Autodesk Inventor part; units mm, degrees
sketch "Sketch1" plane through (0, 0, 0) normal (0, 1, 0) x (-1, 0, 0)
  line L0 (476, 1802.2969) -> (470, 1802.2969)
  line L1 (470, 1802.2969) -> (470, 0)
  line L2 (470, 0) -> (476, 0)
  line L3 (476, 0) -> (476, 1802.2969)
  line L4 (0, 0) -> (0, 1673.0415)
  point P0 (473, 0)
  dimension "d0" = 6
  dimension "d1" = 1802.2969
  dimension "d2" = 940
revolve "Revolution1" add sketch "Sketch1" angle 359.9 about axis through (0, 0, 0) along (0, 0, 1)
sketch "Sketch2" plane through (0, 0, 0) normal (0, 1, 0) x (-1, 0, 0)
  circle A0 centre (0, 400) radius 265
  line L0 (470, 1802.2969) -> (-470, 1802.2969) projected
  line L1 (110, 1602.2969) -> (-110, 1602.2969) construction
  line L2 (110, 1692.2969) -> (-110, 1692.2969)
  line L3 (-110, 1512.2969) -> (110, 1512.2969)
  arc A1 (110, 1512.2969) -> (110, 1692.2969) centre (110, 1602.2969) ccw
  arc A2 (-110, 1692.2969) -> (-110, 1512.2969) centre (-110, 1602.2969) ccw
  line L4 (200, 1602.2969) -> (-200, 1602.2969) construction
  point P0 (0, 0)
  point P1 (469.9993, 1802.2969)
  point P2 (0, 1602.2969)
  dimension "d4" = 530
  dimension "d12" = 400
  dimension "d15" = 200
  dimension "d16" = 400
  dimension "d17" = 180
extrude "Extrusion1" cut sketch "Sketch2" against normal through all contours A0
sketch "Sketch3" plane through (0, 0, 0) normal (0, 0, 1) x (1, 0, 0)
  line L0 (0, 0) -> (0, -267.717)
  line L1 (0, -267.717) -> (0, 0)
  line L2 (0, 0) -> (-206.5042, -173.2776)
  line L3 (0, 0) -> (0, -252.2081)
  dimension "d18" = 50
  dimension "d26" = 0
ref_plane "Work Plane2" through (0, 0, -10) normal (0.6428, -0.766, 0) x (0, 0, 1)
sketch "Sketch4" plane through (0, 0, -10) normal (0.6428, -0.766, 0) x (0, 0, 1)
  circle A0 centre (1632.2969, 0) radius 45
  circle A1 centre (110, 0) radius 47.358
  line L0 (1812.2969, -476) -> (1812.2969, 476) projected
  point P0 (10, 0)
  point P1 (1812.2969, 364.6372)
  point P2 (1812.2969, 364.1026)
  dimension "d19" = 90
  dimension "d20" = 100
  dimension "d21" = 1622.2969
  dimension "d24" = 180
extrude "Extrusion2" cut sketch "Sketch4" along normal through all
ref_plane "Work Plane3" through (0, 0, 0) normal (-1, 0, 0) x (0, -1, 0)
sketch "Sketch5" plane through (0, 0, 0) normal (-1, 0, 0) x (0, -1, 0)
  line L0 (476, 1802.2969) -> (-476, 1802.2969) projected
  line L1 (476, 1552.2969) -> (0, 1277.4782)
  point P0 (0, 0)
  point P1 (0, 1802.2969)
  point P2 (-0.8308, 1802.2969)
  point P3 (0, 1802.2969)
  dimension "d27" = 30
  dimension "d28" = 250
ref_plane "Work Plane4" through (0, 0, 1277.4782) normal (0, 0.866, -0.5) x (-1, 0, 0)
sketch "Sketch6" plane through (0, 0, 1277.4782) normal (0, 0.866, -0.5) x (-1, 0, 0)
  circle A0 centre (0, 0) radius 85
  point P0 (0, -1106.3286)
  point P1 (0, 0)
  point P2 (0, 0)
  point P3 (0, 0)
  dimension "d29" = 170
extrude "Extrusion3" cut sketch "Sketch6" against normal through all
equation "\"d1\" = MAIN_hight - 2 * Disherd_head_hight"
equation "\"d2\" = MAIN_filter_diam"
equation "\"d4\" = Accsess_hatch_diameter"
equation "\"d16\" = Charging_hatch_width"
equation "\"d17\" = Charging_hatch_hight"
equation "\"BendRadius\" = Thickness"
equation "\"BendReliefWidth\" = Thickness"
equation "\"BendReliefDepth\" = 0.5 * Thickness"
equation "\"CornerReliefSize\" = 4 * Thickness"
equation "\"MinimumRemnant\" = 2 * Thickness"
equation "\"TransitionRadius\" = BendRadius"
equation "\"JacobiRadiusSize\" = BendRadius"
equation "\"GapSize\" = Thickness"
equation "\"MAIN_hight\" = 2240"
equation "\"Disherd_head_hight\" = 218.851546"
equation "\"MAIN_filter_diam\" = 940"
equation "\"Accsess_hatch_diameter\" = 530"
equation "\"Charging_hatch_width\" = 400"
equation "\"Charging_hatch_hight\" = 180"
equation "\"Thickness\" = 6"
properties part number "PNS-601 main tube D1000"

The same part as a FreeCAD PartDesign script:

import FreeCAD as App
import Part
import Sketcher


def add_polygon(sketch, points):
    """Adds a closed chain of lines whose ends are joined by coincident constraints."""
    first, n = sketch.GeometryCount, len(points)
    for a, b in zip(points, points[1:] + points[:1]):
        sketch.addGeometry(Part.LineSegment(App.Vector(*a, 0), App.Vector(*b, 0)), False)
    for i in range(n):
        sketch.addConstraint(Sketcher.Constraint("Coincident", first + i, 2, first + (i + 1) % n, 1))

doc = App.newDocument("Part")
params = doc.addObject("Spreadsheet::Sheet", "Params")
for row, (alias, value) in enumerate([
    ("sketch1_width", "6 mm"),
    ("revolution_angle", "359.9 deg"),
    ("sketch2_diameter", "530 mm"),
    ("sketch3_diameter", "90 mm"),
    ("sketch4_diameter", "170 mm"),
], start=1):
    params.set(f"A{row}", alias)
    params.set(f"B{row}", "=" + value)
    params.setAlias(f"B{row}", alias)

body = doc.addObject("PartDesign::Body", "Body")

# Sketch on XZ plane
sketch1 = doc.addObject("Sketcher::SketchObject", "Sketch")
body.addObject(sketch1)
sketch1.AttachmentSupport = (doc.XZ_Plane, [""])
sketch1.MapMode = "FlatFace"
add_polygon(sketch1, [(-476, 0), (-476, 1802), (-470, 1802), (-470, 0)])  # lines 0-3
sketch1.addConstraint([
    Sketcher.Constraint("Vertical", 0),
    Sketcher.Constraint("Horizontal", 1),
    Sketcher.Constraint("Vertical", 2),
    Sketcher.Constraint("Horizontal", 3),
    Sketcher.Constraint("PointOnObject", 2, 2, -1),
    Sketcher.Constraint("DistanceX", 1, 1, 1, 2, 6.0),
    Sketcher.Constraint("DistanceY", 0, 1, 0, 2, 1802.297),
    Sketcher.Constraint("DistanceX", 0, 2, -1, 1, 476.0),
])
sketch1.setExpression("Constraints[9]", "Params.sketch1_width")
revolution = doc.addObject("PartDesign::Revolution", "Revolution")
body.addObject(revolution)
revolution.Profile = sketch1
revolution.ReferenceAxis = (sketch1, ["V_Axis"])
revolution.setExpression("Angle", "Params.revolution_angle")

# Sketch on XZ plane
sketch2 = doc.addObject("Sketcher::SketchObject", "Sketch001")
body.addObject(sketch2)
sketch2.AttachmentSupport = (doc.XZ_Plane, [""])
sketch2.MapMode = "FlatFace"
sketch2.addGeometry(Part.Circle(App.Vector(0, 400, 0), App.Vector(0, 0, 1), 265), False)
sketch2.addConstraint([
    Sketcher.Constraint("PointOnObject", 0, 3, -2),
    Sketcher.Constraint("Diameter", 0, 530.0),
    Sketcher.Constraint("DistanceY", -1, 1, 0, 3, 400.0),
])
sketch2.setExpression("Constraints[1]", "Params.sketch2_diameter")
pocket1 = doc.addObject("PartDesign::Pocket", "Pocket")
body.addObject(pocket1)
pocket1.Profile = sketch2
pocket1.Type = "ThroughAll"
pocket1.Reversed = True

# Sketch on an angled plane
sketch3 = doc.addObject("Sketcher::SketchObject", "Sketch002")
body.addObject(sketch3)
sketch3.Placement = App.Placement(App.Vector(0, 0, -10), App.Rotation(App.Vector(0, 0, 1), App.Vector(-0.766044443, -0.64278761, 0), App.Vector(0.64278761, -0.766044443, 0), "ZXY"))
sketch3.addGeometry([
    Part.Circle(App.Vector(1632, 0, 0), App.Vector(0, 0, 1), 45),
    Part.Circle(App.Vector(110, 0, 0), App.Vector(0, 0, 1), 47),
], False)
sketch3.addConstraint([
    Sketcher.Constraint("PointOnObject", 0, 3, -1),
    Sketcher.Constraint("PointOnObject", 1, 3, -1),
    Sketcher.Constraint("Diameter", 0, 90.0),
    Sketcher.Constraint("Diameter", 1, 94.716),
    Sketcher.Constraint("DistanceX", -1, 1, 1, 3, 110.0),
    Sketcher.Constraint("DistanceX", -1, 1, 0, 3, 1632.297),
])
sketch3.setExpression("Constraints[2]", "Params.sketch3_diameter")
pocket2 = doc.addObject("PartDesign::Pocket", "Pocket001")
body.addObject(pocket2)
pocket2.Profile = sketch3
pocket2.Type = "ThroughAll"
pocket2.Reversed = True

# Sketch on an angled plane
sketch4 = doc.addObject("Sketcher::SketchObject", "Sketch003")
body.addObject(sketch4)
sketch4.Placement = App.Placement(App.Vector(0, 0, 1277.4782), App.Rotation(App.Vector(-1, 0, 0), App.Vector(0, 0.5, 0.866025404), App.Vector(0, 0.866025404, -0.5), "ZXY"))
sketch4.addGeometry(Part.Circle(App.Vector(0, 0, 0), App.Vector(0, 0, 1), 85), False)
sketch4.addConstraint([
    Sketcher.Constraint("Coincident", 0, 3, -1, 1),
    Sketcher.Constraint("Diameter", 0, 170.0),
])
sketch4.setExpression("Constraints[1]", "Params.sketch4_diameter")
pocket3 = doc.addObject("PartDesign::Pocket", "Pocket002")
body.addObject(pocket3)
pocket3.Profile = sketch4
pocket3.Type = "ThroughAll"

doc.recompute()
